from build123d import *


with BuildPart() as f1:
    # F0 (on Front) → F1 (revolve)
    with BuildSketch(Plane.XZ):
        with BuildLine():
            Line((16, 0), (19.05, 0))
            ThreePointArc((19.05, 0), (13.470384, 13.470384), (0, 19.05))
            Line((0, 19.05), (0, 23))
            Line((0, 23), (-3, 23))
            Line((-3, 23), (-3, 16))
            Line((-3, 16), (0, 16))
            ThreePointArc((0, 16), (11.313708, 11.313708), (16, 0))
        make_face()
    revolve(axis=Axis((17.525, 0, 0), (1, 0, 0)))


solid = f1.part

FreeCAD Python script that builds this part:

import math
import FreeCAD as App
import Part
import Sketcher
from FreeCAD import Vector

doc = App.newDocument("Part")
body = doc.addObject("PartDesign::Body", "Body")

# Sketch on XZ plane
sketch1 = body.newObject("Sketcher::SketchObject", "Sketch")
sketch1.AttachmentSupport = (doc.getObject("XZ_Plane"), [""])
sketch1.MapMode = "FlatFace"
sketch1.addGeometry([
    Part.LineSegment(Vector(16, 0, 0), Vector(19.1, 0, 0)),  # 0
    Part.ArcOfCircle(Part.Circle(Vector(0, 0, 0), Vector(0, 0, 1), 19.1), math.radians(0), math.radians(90)),  # 1
    Part.LineSegment(Vector(0, 19.1, 0), Vector(0, 23, 0)),  # 2
    Part.LineSegment(Vector(0, 23, 0), Vector(-3, 23, 0)),  # 3
    Part.LineSegment(Vector(-3, 23, 0), Vector(-3, 16, 0)),  # 4
    Part.LineSegment(Vector(-3, 16, 0), Vector(0, 16, 0)),  # 5
    Part.ArcOfCircle(Part.Circle(Vector(0, 0, 0), Vector(0, 0, 1), 16), math.radians(0), math.radians(90)),  # 6
], False)
sketch1.addConstraint([
    Sketcher.Constraint("Coincident", 0, 2, 1, 1),
    Sketcher.Constraint("Coincident", 1, 2, 2, 1),
    Sketcher.Constraint("Coincident", 2, 2, 3, 1),
    Sketcher.Constraint("Coincident", 3, 2, 4, 1),
    Sketcher.Constraint("Coincident", 4, 2, 5, 1),
    Sketcher.Constraint("Tangent", 5, 2, 6, 2),
    Sketcher.Constraint("Coincident", 6, 1, 0, 1),
    Sketcher.Constraint("Horizontal", 0),
    Sketcher.Constraint("Vertical", 2),
    Sketcher.Constraint("Horizontal", 3),
    Sketcher.Constraint("Vertical", 4),
    Sketcher.Constraint("Horizontal", 5),
    Sketcher.Constraint("Coincident", 1, 3, -1, 1),
    Sketcher.Constraint("Coincident", 6, 3, -1, 1),
    Sketcher.Constraint("PointOnObject", 0, 2, -1),
    Sketcher.Constraint("PointOnObject", 1, 2, -2),
    Sketcher.Constraint("Radius", 6, 16.000002),
    Sketcher.Constraint("DistanceX", 3, 2, 3, 1, 3.0),
    Sketcher.Constraint("DistanceY", 4, 2, 4, 1, 7.0),
    Sketcher.Constraint("Radius", 1, 19.050001),
])
revolution = body.newObject("PartDesign::Revolution", "Revolution")
revolution.Profile = sketch1
revolution.ReferenceAxis = (sketch1, ["H_Axis"])
revolution.Angle = 360

doc.recompute()
